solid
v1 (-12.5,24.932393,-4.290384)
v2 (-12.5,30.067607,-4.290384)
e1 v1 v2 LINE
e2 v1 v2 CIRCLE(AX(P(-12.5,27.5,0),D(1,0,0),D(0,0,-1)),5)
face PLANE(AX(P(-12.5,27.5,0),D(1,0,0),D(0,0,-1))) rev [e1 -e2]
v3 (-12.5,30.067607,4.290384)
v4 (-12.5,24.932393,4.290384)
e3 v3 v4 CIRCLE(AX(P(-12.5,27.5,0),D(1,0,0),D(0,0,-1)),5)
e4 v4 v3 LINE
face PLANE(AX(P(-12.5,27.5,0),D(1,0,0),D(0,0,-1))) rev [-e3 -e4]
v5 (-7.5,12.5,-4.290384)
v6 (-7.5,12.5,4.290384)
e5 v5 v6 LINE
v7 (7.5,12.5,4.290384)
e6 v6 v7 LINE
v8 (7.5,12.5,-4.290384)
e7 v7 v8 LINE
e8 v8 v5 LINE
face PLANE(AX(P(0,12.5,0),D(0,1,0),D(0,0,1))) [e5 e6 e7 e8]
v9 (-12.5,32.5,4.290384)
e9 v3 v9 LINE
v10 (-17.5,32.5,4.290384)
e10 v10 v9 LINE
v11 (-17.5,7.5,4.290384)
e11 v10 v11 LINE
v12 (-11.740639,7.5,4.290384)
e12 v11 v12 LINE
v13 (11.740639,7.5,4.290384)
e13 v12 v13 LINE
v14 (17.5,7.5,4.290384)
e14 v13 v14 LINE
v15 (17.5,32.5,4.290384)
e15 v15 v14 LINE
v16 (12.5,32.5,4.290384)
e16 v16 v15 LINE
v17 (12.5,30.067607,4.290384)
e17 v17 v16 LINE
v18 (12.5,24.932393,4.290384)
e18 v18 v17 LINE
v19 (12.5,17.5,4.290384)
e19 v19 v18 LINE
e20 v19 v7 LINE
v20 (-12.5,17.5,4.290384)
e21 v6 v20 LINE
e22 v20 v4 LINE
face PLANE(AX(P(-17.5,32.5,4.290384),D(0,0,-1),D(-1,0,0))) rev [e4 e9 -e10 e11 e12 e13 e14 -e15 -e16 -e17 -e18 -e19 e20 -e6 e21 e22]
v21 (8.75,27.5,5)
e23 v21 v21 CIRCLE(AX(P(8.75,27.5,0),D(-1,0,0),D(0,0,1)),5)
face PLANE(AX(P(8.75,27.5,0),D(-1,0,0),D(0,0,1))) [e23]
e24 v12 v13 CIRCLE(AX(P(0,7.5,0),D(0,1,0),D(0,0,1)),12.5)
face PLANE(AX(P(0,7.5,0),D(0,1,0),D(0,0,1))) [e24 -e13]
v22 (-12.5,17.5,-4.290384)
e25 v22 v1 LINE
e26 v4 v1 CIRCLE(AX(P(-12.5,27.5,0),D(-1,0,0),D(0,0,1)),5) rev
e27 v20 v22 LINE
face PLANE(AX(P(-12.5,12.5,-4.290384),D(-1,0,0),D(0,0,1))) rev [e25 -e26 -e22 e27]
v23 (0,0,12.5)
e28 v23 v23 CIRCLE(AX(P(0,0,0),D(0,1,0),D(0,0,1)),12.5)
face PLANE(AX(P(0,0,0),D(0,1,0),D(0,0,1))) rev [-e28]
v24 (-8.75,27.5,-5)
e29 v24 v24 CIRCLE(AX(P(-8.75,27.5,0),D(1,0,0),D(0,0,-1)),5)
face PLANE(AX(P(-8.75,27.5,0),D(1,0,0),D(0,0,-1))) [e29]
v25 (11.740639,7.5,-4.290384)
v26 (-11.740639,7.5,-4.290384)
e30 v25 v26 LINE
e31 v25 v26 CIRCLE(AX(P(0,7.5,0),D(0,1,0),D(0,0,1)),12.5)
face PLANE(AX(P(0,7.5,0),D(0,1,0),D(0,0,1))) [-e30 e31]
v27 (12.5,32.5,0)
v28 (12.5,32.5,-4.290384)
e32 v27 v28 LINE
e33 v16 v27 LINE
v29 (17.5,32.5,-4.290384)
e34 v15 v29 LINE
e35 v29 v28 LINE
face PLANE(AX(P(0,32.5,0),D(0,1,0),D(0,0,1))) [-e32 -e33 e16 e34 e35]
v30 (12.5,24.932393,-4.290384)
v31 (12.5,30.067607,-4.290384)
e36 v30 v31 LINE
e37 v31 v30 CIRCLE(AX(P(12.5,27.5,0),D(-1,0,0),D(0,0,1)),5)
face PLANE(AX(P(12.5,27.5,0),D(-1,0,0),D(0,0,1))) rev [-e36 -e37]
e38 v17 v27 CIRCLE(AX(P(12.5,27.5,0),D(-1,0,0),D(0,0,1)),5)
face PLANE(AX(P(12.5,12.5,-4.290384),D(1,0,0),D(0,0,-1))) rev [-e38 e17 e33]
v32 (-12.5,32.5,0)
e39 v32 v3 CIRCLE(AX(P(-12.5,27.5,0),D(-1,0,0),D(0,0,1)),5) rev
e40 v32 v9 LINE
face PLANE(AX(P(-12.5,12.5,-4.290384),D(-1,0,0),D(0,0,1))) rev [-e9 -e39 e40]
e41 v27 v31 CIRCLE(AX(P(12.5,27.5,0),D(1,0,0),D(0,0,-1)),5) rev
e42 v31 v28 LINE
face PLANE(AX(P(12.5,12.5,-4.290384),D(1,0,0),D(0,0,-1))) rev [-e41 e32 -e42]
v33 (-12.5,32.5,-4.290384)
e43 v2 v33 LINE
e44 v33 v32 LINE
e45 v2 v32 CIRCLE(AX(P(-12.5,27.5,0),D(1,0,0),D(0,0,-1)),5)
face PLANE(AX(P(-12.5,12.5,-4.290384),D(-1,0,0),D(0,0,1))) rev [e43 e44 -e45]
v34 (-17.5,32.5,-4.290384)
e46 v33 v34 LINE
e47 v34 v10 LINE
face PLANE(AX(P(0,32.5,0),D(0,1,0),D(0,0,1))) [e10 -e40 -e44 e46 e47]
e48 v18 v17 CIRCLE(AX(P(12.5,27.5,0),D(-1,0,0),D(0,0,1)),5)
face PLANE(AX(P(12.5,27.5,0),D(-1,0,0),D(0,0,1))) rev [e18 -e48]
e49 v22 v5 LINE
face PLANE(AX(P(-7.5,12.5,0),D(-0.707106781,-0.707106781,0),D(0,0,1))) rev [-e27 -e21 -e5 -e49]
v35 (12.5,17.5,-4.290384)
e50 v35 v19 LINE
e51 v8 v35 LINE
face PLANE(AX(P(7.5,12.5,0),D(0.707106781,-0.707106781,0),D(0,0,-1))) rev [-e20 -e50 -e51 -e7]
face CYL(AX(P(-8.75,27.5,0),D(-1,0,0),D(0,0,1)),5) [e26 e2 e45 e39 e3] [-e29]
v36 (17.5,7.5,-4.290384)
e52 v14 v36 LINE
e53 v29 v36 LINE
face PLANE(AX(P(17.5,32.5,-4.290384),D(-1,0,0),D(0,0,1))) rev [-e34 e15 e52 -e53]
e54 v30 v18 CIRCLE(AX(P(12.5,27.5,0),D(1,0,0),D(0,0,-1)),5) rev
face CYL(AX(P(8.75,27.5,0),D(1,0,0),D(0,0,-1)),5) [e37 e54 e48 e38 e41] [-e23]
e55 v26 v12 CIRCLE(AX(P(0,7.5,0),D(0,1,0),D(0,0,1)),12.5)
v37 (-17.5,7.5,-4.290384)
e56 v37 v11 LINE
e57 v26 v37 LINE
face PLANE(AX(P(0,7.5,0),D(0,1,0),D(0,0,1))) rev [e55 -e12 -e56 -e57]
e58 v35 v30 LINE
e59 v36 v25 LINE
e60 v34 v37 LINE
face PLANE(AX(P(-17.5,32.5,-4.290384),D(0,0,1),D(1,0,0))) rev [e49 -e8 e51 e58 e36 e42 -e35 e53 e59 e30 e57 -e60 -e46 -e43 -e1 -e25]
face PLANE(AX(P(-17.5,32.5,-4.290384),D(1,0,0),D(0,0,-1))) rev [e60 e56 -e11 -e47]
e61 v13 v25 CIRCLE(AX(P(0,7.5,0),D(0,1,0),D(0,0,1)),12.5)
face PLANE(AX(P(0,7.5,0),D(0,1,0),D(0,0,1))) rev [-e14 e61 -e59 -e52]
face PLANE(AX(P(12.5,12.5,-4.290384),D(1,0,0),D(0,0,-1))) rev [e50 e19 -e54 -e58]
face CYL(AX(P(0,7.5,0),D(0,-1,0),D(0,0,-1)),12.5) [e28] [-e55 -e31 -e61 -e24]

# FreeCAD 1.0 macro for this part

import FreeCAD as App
import Part
import Sketcher
from FreeCAD import Vector
Q = App.Units.Quantity


def edges_at(feature, points):
    """Names of the edges that pass closest to the given points."""
    edges = feature.Shape.Edges
    near = lambda p: min(range(len(edges)), key=lambda i: edges[i].distToShape(Part.Vertex(*p))[0])
    return sorted({f"Edge{near(p) + 1}" for p in points})


def add_polygon(sketch, points):
    """Adds a closed chain of lines whose ends are joined by coincident constraints."""
    first, n = sketch.GeometryCount, len(points)
    for a, b in zip(points, points[1:] + points[:1]):
        sketch.addGeometry(Part.LineSegment(App.Vector(*a, 0), App.Vector(*b, 0)), False)
    for i in range(n):
        sketch.addConstraint(Sketcher.Constraint("Coincident", first + i, 2, first + (i + 1) % n, 1))

doc = App.newDocument("Part")
body = doc.addObject("PartDesign::Body", "Body")

sketch1 = body.newObject("Sketcher::SketchObject", "Sketch")
sketch1.AttachmentSupport = (doc.getObject("XZ_Plane"), [""])
sketch1.MapMode = "FlatFace"
sketch1.addGeometry(Part.Circle(Vector(0, 0, 0), Vector(0, 0, 1), 12), False)
sketch1.addConstraint(Sketcher.Constraint("Coincident", 0, 3, -1, 1))
sketch1.addConstraint(Sketcher.Constraint("Diameter", 0, Q("25 mm")))
pad1 = body.newObject("PartDesign::Pad", "Pad")
pad1.Profile = sketch1
pad1.Length = 7.5
pad1.Reversed = True

sketch2 = body.newObject("Sketcher::SketchObject", "Sketch001")
sketch2.AttachmentSupport = (doc.getObject("XZ_Plane"), [""])
sketch2.MapMode = "FlatFace"
sketch2.AttachmentOffset = App.Placement(Vector(0, 0, -7.5), App.Rotation())
add_polygon(sketch2, [(-18, -4), (-18, 4), (18, 4), (18, -4)])
sketch2.addConstraint(Sketcher.Constraint("Vertical", 0))
sketch2.addConstraint(Sketcher.Constraint("Horizontal", 1))
sketch2.addConstraint(Sketcher.Constraint("Vertical", 2))
sketch2.addConstraint(Sketcher.Constraint("Horizontal", 3))
sketch2.addConstraint(Sketcher.Constraint("Symmetric", 0, 2, 2, 2, -1, 1))
sketch2.addConstraint(Sketcher.Constraint("DistanceX", 1, 1, 1, 2, Q("35 mm")))
sketch2.addConstraint(Sketcher.Constraint("DistanceY", 0, 1, 0, 2, Q("8.580768 mm")))
pad2 = body.newObject("PartDesign::Pad", "Pad001")
pad2.Profile = sketch2
pad2.Length = 25
pad2.Reversed = True

sketch3 = body.newObject("Sketcher::SketchObject", "Sketch002")
sketch3.AttachmentSupport = (doc.getObject("XZ_Plane"), [""])
sketch3.MapMode = "FlatFace"
sketch3.AttachmentOffset = App.Placement(Vector(0, 0, -32.5), App.Rotation())
add_polygon(sketch3, [(-12, -4), (-12, 4), (12, 4), (12, -4)])
sketch3.addConstraint(Sketcher.Constraint("Vertical", 0))
sketch3.addConstraint(Sketcher.Constraint("Horizontal", 1))
sketch3.addConstraint(Sketcher.Constraint("Vertical", 2))
sketch3.addConstraint(Sketcher.Constraint("Horizontal", 3))
sketch3.addConstraint(Sketcher.Constraint("Symmetric", 0, 2, 2, 2, -1, 1))
sketch3.addConstraint(Sketcher.Constraint("DistanceX", 1, 1, 1, 2, Q("25 mm")))
sketch3.addConstraint(Sketcher.Constraint("DistanceY", 0, 1, 0, 2, Q("8.580768 mm")))
pocket1 = body.newObject("PartDesign::Pocket", "Pocket")
pocket1.Profile = sketch3
pocket1.Length = 20
pocket1.Reversed = True

sketch4 = body.newObject("Sketcher::SketchObject", "Sketch003")
sketch4.AttachmentSupport = (doc.getObject("YZ_Plane"), [""])
sketch4.MapMode = "FlatFace"
sketch4.AttachmentOffset = App.Placement(Vector(0, 0, -12.5), App.Rotation())
sketch4.addGeometry(Part.Circle(Vector(28, 0, 0), Vector(0, 0, 1), 5), False)
sketch4.addConstraint(Sketcher.Constraint("PointOnObject", 0, 3, -1))
sketch4.addConstraint(Sketcher.Constraint("Diameter", 0, Q("10 mm")))
sketch4.addConstraint(Sketcher.Constraint("DistanceX", -1, 1, 0, 3, Q("27.5 mm")))
pad3 = body.newObject("PartDesign::Pad", "Pad002")
pad3.Profile = sketch4
pad3.Length = 3.75

sketch5 = body.newObject("Sketcher::SketchObject", "Sketch004")
sketch5.AttachmentSupport = (doc.getObject("YZ_Plane"), [""])
sketch5.MapMode = "FlatFace"
sketch5.AttachmentOffset = App.Placement(Vector(0, 0, 12.5), App.Rotation())
sketch5.addGeometry(Part.Circle(Vector(28, 0, 0), Vector(0, 0, 1), 5), False)
sketch5.addConstraint(Sketcher.Constraint("PointOnObject", 0, 3, -1))
sketch5.addConstraint(Sketcher.Constraint("Diameter", 0, Q("10 mm")))
sketch5.addConstraint(Sketcher.Constraint("DistanceX", -1, 1, 0, 3, Q("27.5 mm")))
pad4 = body.newObject("PartDesign::Pad", "Pad003")
pad4.Profile = sketch5
pad4.Length = 3.75
pad4.Reversed = True
doc.recompute()

chamfer = body.newObject("PartDesign::Chamfer", "Chamfer")
chamfer.Base = (pad4, edges_at(pad4, [(-12.5, 12.5, 0)]))
chamfer.Size = 5
doc.recompute()

chamfer2 = body.newObject("PartDesign::Chamfer", "Chamfer001")
chamfer2.Base = (chamfer, edges_at(chamfer, [(12.5, 12.5, 0)]))
chamfer2.Size = 5

doc.recompute()
